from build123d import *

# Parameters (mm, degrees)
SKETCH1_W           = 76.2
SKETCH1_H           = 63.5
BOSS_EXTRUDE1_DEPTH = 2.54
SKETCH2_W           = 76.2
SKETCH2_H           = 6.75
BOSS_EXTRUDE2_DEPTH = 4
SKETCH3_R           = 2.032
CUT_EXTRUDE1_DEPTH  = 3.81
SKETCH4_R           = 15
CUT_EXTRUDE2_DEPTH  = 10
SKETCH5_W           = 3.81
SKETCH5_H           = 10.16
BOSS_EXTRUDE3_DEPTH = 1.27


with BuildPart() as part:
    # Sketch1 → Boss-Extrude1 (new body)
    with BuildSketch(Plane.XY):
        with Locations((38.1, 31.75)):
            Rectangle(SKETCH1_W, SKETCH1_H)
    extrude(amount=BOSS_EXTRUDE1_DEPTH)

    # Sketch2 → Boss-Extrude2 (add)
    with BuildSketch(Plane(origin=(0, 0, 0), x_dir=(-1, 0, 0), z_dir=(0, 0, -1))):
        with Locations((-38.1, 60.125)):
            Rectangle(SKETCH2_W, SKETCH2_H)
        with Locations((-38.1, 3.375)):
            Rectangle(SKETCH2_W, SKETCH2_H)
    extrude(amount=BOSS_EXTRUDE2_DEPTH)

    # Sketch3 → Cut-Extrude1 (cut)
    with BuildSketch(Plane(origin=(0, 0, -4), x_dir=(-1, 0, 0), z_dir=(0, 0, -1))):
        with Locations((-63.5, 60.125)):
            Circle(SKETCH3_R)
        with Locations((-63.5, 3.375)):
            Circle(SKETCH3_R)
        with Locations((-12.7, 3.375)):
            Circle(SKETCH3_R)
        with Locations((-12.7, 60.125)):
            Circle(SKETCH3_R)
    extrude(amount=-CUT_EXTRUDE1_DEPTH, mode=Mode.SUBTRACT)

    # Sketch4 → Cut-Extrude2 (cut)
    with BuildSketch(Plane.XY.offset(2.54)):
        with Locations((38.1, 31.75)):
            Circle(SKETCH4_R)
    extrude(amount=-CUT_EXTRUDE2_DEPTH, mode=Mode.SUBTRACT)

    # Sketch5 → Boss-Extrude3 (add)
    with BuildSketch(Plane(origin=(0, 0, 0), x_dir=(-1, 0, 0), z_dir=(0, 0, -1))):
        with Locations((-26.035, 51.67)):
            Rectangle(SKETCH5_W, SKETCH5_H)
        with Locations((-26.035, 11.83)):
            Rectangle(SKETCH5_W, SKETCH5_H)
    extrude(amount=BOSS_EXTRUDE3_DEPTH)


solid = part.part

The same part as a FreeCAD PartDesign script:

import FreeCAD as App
import Part
import Sketcher
Q = App.Units.Quantity

doc = App.newDocument("Part")
body = doc.addObject("PartDesign::Body", "Body")

sketch1 = body.newObject("Sketcher::SketchObject", "Sketch")
sketch1.AttachmentSupport = (doc.getObject("XY_Plane"), [""])
sketch1.MapMode = "FlatFace"
sketch1.addGeometry(Part.LineSegment(App.Vector(0, 64, 0), App.Vector(0, 0, 0)), False)
sketch1.addGeometry(Part.LineSegment(App.Vector(0, 0, 0), App.Vector(76, 0, 0)), False)
sketch1.addGeometry(Part.LineSegment(App.Vector(76, 0, 0), App.Vector(76, 64, 0)), False)
sketch1.addGeometry(Part.LineSegment(App.Vector(76, 64, 0), App.Vector(0, 64, 0)), False)
sketch1.addConstraint(Sketcher.Constraint("Coincident", 0, 2, 1, 1))
sketch1.addConstraint(Sketcher.Constraint("Coincident", 1, 2, 2, 1))
sketch1.addConstraint(Sketcher.Constraint("Coincident", 2, 2, 3, 1))
sketch1.addConstraint(Sketcher.Constraint("Coincident", 3, 2, 0, 1))
sketch1.addConstraint(Sketcher.Constraint("Vertical", 0))
sketch1.addConstraint(Sketcher.Constraint("Horizontal", 1))
sketch1.addConstraint(Sketcher.Constraint("Vertical", 2))
sketch1.addConstraint(Sketcher.Constraint("Horizontal", 3))
sketch1.addConstraint(Sketcher.Constraint("Coincident", 0, 2, -1, 1))
sketch1.addConstraint(Sketcher.Constraint("DistanceX", 1, 1, 1, 2, Q("3 in")))
sketch1.addConstraint(Sketcher.Constraint("DistanceY", 0, 2, 0, 1, Q("2.5 in")))
pad1 = body.newObject("PartDesign::Pad", "Pad")
pad1.Profile = sketch1
pad1.Length = Q("0.1 in")

sketch2 = body.newObject("Sketcher::SketchObject", "Sketch001")
sketch2.AttachmentSupport = (doc.getObject("XY_Plane"), [""])
sketch2.MapMode = "FlatFace"
sketch2.addGeometry(Part.LineSegment(App.Vector(76, 64, 0), App.Vector(76, 57, 0)), False)
sketch2.addGeometry(Part.LineSegment(App.Vector(76, 57, 0), App.Vector(0, 57, 0)), False)
sketch2.addGeometry(Part.LineSegment(App.Vector(0, 57, 0), App.Vector(0, 64, 0)), False)
sketch2.addGeometry(Part.LineSegment(App.Vector(0, 64, 0), App.Vector(76, 64, 0)), False)
sketch2.addGeometry(Part.LineSegment(App.Vector(76, 7, 0), App.Vector(76, 0, 0)), False)
sketch2.addGeometry(Part.LineSegment(App.Vector(76, 0, 0), App.Vector(0, 0, 0)), False)
sketch2.addGeometry(Part.LineSegment(App.Vector(0, 0, 0), App.Vector(0, 7, 0)), False)
sketch2.addGeometry(Part.LineSegment(App.Vector(0, 7, 0), App.Vector(76, 7, 0)), False)
sketch2.addConstraint(Sketcher.Constraint("Coincident", 0, 2, 1, 1))
sketch2.addConstraint(Sketcher.Constraint("Coincident", 1, 2, 2, 1))
sketch2.addConstraint(Sketcher.Constraint("Coincident", 2, 2, 3, 1))
sketch2.addConstraint(Sketcher.Constraint("Coincident", 3, 2, 0, 1))
sketch2.addConstraint(Sketcher.Constraint("Coincident", 4, 2, 5, 1))
sketch2.addConstraint(Sketcher.Constraint("Coincident", 5, 2, 6, 1))
sketch2.addConstraint(Sketcher.Constraint("Coincident", 6, 2, 7, 1))
sketch2.addConstraint(Sketcher.Constraint("Coincident", 7, 2, 4, 1))
sketch2.addConstraint(Sketcher.Constraint("Vertical", 0))
sketch2.addConstraint(Sketcher.Constraint("Horizontal", 1))
sketch2.addConstraint(Sketcher.Constraint("Vertical", 2))
sketch2.addConstraint(Sketcher.Constraint("Horizontal", 3))
sketch2.addConstraint(Sketcher.Constraint("Vertical", 4))
sketch2.addConstraint(Sketcher.Constraint("Horizontal", 5))
sketch2.addConstraint(Sketcher.Constraint("Vertical", 6))
sketch2.addConstraint(Sketcher.Constraint("Horizontal", 7))
sketch2.addConstraint(Sketcher.Constraint("Coincident", 5, 2, -1, 1))
sketch2.addConstraint(Sketcher.Constraint("PointOnObject", 1, 2, -2))
sketch2.addConstraint(Sketcher.Constraint("Vertical", 3, 2, 4, 2))
sketch2.addConstraint(Sketcher.Constraint("Equal", 2, 4))
sketch2.addConstraint(Sketcher.Constraint("DistanceX", 1, 2, 1, 1, Q("3 in")))
sketch2.addConstraint(Sketcher.Constraint("DistanceY", -1, 1, 2, 2, Q("2.5 in")))
sketch2.addConstraint(Sketcher.Constraint("DistanceY", 0, 2, 0, 1, Q("6.75 mm")))
pad2 = body.newObject("PartDesign::Pad", "Pad001")
pad2.Profile = sketch2
pad2.Length = 4
pad2.Reversed = True

sketch3 = body.newObject("Sketcher::SketchObject", "Sketch002")
sketch3.AttachmentSupport = (doc.getObject("XY_Plane"), [""])
sketch3.MapMode = "FlatFace"
sketch3.AttachmentOffset = App.Placement(App.Vector(0, 0, -4), App.Rotation())
sketch3.addGeometry(Part.Circle(App.Vector(63.5, 60.1, 0), App.Vector(0, 0, 1), 2), False)
sketch3.addGeometry(Part.Circle(App.Vector(63.5, 3.4, 0), App.Vector(0, 0, 1), 2), False)
sketch3.addGeometry(Part.Circle(App.Vector(12.7, 3.4, 0), App.Vector(0, 0, 1), 2), False)
sketch3.addGeometry(Part.Circle(App.Vector(12.7, 60.1, 0), App.Vector(0, 0, 1), 2), False)
sketch3.addConstraint(Sketcher.Constraint("Equal", 0, 1))
sketch3.addConstraint(Sketcher.Constraint("Equal", 1, 2))
sketch3.addConstraint(Sketcher.Constraint("Equal", 2, 3))
sketch3.addConstraint(Sketcher.Constraint("Horizontal", 1, 3, 2, 3))
sketch3.addConstraint(Sketcher.Constraint("Horizontal", 0, 3, 3, 3))
sketch3.addConstraint(Sketcher.Constraint("Vertical", 0, 3, 1, 3))
sketch3.addConstraint(Sketcher.Constraint("Vertical", 2, 3, 3, 3))
sketch3.addConstraint(Sketcher.Constraint("Diameter", 0, Q("0.16 in")))
sketch3.addConstraint(Sketcher.Constraint("DistanceX", 2, 3, 1, 3, Q("2 in")))
sketch3.addConstraint(Sketcher.Constraint("DistanceX", -1, 1, 0, 3, Q("2.5 in")))
sketch3.addConstraint(Sketcher.Constraint("DistanceY", -1, 1, 0, 3, Q("60.125 mm")))
sketch3.addConstraint(Sketcher.Constraint("DistanceY", -1, 1, 1, 3, Q("3.375 mm")))
pocket1 = body.newObject("PartDesign::Pocket", "Pocket")
pocket1.Profile = sketch3
pocket1.Length = Q("0.15 in")
pocket1.Reversed = True

sketch4 = body.newObject("Sketcher::SketchObject", "Sketch003")
sketch4.AttachmentSupport = (doc.getObject("XY_Plane"), [""])
sketch4.MapMode = "FlatFace"
sketch4.AttachmentOffset = App.Placement(App.Vector(0, 0, 0.1 * 25.4), App.Rotation())
sketch4.addGeometry(Part.Circle(App.Vector(38, 32, 0), App.Vector(0, 0, 1), 15), False)
sketch4.addConstraint(Sketcher.Constraint("DistanceX", -1, 1, 0, 3, Q("1.5 in")))
sketch4.addConstraint(Sketcher.Constraint("Diameter", 0, Q("30 mm")))
sketch4.addConstraint(Sketcher.Constraint("DistanceY", -1, 1, 0, 3, Q("1.25 in")))
pocket2 = body.newObject("PartDesign::Pocket", "Pocket001")
pocket2.Profile = sketch4
pocket2.Length = 10

sketch5 = body.newObject("Sketcher::SketchObject", "Sketch004")
sketch5.AttachmentSupport = (doc.getObject("XY_Plane"), [""])
sketch5.MapMode = "FlatFace"
sketch5.addGeometry(Part.LineSegment(App.Vector(27.9, 56.8, 0), App.Vector(27.9, 46.6, 0)), False)
sketch5.addGeometry(Part.LineSegment(App.Vector(27.9, 46.6, 0), App.Vector(24.1, 46.6, 0)), False)
sketch5.addGeometry(Part.LineSegment(App.Vector(24.1, 46.6, 0), App.Vector(24.1, 56.8, 0)), False)
sketch5.addGeometry(Part.LineSegment(App.Vector(24.1, 56.8, 0), App.Vector(27.9, 56.8, 0)), False)
sketch5.addGeometry(Part.LineSegment(App.Vector(27.9, 16.9, 0), App.Vector(27.9, 6.8, 0)), False)
sketch5.addGeometry(Part.LineSegment(App.Vector(27.9, 6.8, 0), App.Vector(24.1, 6.8, 0)), False)
sketch5.addGeometry(Part.LineSegment(App.Vector(24.1, 6.8, 0), App.Vector(24.1, 16.9, 0)), False)
sketch5.addGeometry(Part.LineSegment(App.Vector(24.1, 16.9, 0), App.Vector(27.9, 16.9, 0)), False)
sketch5.addConstraint(Sketcher.Constraint("Coincident", 0, 2, 1, 1))
sketch5.addConstraint(Sketcher.Constraint("Coincident", 1, 2, 2, 1))
sketch5.addConstraint(Sketcher.Constraint("Coincident", 2, 2, 3, 1))
sketch5.addConstraint(Sketcher.Constraint("Coincident", 3, 2, 0, 1))
sketch5.addConstraint(Sketcher.Constraint("Coincident", 4, 2, 5, 1))
sketch5.addConstraint(Sketcher.Constraint("Coincident", 5, 2, 6, 1))
sketch5.addConstraint(Sketcher.Constraint("Coincident", 6, 2, 7, 1))
sketch5.addConstraint(Sketcher.Constraint("Coincident", 7, 2, 4, 1))
sketch5.addConstraint(Sketcher.Constraint("Vertical", 0))
sketch5.addConstraint(Sketcher.Constraint("Horizontal", 1))
sketch5.addConstraint(Sketcher.Constraint("Vertical", 2))
sketch5.addConstraint(Sketcher.Constraint("Horizontal", 3))
sketch5.addConstraint(Sketcher.Constraint("Vertical", 4))
sketch5.addConstraint(Sketcher.Constraint("Horizontal", 5))
sketch5.addConstraint(Sketcher.Constraint("Vertical", 6))
sketch5.addConstraint(Sketcher.Constraint("Horizontal", 7))
sketch5.addConstraint(Sketcher.Constraint("Vertical", 3, 2, 4, 2))
sketch5.addConstraint(Sketcher.Constraint("Vertical", 2, 2, 5, 2))
sketch5.addConstraint(Sketcher.Constraint("Equal", 2, 4))
sketch5.addConstraint(Sketcher.Constraint("DistanceY", 0, 2, 0, 1, Q("0.4 in")))
sketch5.addConstraint(Sketcher.Constraint("DistanceX", 1, 2, 1, 1, Q("0.15 in")))
sketch5.addConstraint(Sketcher.Constraint("DistanceX", -1, 1, 0, 2, Q("1.1 in")))
sketch5.addConstraint(Sketcher.Constraint("DistanceY", -1, 1, 0, 2, Q("46.59 mm")))
sketch5.addConstraint(Sketcher.Constraint("DistanceY", -1, 1, 4, 2, Q("6.75 mm")))
pad3 = body.newObject("PartDesign::Pad", "Pad002")
pad3.Profile = sketch5
pad3.Length = Q("0.05 in")
pad3.Reversed = True

doc.recompute()
